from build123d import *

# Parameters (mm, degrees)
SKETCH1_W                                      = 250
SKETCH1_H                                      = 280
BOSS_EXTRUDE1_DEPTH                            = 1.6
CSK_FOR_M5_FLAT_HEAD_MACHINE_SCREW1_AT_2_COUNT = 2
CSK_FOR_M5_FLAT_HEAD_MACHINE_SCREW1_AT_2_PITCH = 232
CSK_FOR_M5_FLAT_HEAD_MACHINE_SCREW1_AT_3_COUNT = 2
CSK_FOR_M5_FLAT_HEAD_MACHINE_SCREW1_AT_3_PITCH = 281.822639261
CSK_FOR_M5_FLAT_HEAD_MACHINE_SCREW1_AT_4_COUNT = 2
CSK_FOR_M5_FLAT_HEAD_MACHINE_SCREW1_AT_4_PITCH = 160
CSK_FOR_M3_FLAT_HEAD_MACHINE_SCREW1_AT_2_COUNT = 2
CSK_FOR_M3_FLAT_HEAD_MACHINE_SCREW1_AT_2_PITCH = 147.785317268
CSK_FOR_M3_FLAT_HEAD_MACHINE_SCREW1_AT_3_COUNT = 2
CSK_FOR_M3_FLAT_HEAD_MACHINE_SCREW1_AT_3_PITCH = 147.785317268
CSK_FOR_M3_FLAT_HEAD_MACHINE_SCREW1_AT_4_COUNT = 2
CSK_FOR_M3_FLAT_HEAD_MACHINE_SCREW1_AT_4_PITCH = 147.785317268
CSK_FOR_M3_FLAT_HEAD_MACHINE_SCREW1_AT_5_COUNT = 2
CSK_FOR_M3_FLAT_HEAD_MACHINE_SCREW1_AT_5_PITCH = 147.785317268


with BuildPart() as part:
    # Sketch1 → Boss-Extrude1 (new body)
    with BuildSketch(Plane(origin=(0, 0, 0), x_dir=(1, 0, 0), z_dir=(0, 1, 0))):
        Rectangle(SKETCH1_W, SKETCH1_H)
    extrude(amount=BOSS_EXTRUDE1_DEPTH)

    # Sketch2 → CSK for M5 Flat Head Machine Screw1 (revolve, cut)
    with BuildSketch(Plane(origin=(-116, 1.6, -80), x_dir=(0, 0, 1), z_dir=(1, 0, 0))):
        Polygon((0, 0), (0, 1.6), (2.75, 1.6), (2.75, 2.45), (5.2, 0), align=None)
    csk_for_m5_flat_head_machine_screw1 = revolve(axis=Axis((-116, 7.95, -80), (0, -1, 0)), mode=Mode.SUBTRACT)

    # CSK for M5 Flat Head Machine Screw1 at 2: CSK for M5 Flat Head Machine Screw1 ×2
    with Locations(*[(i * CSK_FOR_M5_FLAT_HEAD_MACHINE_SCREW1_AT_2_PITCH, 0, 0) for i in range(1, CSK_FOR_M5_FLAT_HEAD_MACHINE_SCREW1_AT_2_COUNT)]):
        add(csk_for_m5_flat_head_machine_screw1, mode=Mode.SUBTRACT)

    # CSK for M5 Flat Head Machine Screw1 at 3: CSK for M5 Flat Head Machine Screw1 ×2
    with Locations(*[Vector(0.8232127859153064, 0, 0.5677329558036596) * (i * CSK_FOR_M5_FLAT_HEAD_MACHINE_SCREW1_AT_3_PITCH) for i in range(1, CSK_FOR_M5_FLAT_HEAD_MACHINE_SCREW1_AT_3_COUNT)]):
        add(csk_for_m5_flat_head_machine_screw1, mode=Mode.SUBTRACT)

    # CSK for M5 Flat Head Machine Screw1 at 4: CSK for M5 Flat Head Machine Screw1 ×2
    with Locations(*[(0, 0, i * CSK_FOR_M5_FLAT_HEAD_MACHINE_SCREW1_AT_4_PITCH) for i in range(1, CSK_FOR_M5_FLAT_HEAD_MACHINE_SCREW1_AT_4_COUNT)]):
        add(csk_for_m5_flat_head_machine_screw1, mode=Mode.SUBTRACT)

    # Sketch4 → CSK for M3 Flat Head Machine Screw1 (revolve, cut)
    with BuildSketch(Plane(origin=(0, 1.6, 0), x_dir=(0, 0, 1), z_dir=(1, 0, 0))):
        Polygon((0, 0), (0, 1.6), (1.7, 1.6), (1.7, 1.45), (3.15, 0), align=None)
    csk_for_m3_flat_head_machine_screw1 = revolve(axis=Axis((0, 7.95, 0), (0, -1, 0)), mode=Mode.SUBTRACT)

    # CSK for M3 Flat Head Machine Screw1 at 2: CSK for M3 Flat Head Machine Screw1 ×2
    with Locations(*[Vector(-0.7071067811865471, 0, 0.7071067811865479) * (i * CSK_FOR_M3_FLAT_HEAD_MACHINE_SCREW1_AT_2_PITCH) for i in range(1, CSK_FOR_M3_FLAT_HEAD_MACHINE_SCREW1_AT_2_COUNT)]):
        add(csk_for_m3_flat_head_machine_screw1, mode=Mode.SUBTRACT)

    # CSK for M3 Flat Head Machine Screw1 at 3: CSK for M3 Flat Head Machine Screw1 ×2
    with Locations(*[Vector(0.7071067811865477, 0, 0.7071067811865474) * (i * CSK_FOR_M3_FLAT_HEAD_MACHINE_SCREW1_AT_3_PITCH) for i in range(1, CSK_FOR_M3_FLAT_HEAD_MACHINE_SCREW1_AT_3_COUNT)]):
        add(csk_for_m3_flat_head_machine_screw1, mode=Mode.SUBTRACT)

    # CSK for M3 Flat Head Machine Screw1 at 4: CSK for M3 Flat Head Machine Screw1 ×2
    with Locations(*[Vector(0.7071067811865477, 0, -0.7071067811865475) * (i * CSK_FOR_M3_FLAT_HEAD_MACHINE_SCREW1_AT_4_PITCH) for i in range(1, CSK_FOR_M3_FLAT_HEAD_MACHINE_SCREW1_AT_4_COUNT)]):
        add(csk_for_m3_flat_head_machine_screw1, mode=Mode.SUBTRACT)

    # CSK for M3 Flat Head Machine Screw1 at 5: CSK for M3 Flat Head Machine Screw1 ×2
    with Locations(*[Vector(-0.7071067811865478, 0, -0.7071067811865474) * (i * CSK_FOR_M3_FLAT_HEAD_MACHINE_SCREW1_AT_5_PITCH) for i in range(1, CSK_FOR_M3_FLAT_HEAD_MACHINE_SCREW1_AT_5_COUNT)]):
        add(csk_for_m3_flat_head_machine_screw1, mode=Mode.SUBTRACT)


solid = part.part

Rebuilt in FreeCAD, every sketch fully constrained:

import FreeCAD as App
import Part
import Sketcher
Q = App.Units.Quantity


def add_polygon(sketch, points):
    """Adds a closed chain of lines whose ends are joined by coincident constraints."""
    first, n = sketch.GeometryCount, len(points)
    for a, b in zip(points, points[1:] + points[:1]):
        sketch.addGeometry(Part.LineSegment(App.Vector(*a, 0), App.Vector(*b, 0)), False)
    for i in range(n):
        sketch.addConstraint(Sketcher.Constraint("Coincident", first + i, 2, first + (i + 1) % n, 1))

doc = App.newDocument("Part")
params = doc.addObject("Spreadsheet::Sheet", "Params")
for row, (alias, value) in enumerate([
    ("sketch1_width", "250 mm"),
    ("sketch1_height", "280 mm"),
    ("pad1_length", "1.6 mm"),
    ("sketch2_width", "1.6 mm"),
    ("sketch2_height", "5.2 mm"),
    ("sketch2_width2", "0.85 mm"),
    ("groove_angle", "360 deg"),
    ("linearpattern_pitch", "232 mm"),
    ("linearpattern2_pitch", "281.822639 mm"),
    ("linearpattern3_pitch", "160 mm"),
    ("sketch3_width", "1.6 mm"),
    ("sketch3_height", "1.7 mm"),
    ("sketch3_width2", "0.15 mm"),
    ("groove2_angle", "360 deg"),
    ("linearpattern4_pitch", "147.785317 mm"),
    ("linearpattern5_pitch", "147.785317 mm"),
    ("linearpattern6_pitch", "147.785317 mm"),
    ("linearpattern7_pitch", "147.785317 mm"),
], start=1):
    params.set(f"A{row}", alias)
    params.set(f"B{row}", "=" + value)
    params.setAlias(f"B{row}", alias)

body = doc.addObject("PartDesign::Body", "Body")

# Sketch on XZ plane
sketch1 = doc.addObject("Sketcher::SketchObject", "Sketch")
body.addObject(sketch1)
sketch1.AttachmentSupport = (doc.XZ_Plane, [""])
sketch1.MapMode = "FlatFace"
add_polygon(sketch1, [(-125, -140), (-125, 140), (125, 140), (125, -140)])  # lines 0-3
sketch1.addConstraint(Sketcher.Constraint("Vertical", 0))
sketch1.addConstraint(Sketcher.Constraint("Horizontal", 1))
sketch1.addConstraint(Sketcher.Constraint("Vertical", 2))
sketch1.addConstraint(Sketcher.Constraint("Horizontal", 3))
sketch1.addConstraint(Sketcher.Constraint("Symmetric", 0, 2, 2, 2, -1, 1))
sketch1.addConstraint(Sketcher.Constraint("DistanceX", 1, 1, 1, 2, 250.0))
sketch1.addConstraint(Sketcher.Constraint("DistanceY", 0, 1, 0, 2, 280.0))
sketch1.setExpression("Constraints[9]", "Params.sketch1_width")
sketch1.setExpression("Constraints[10]", "Params.sketch1_height")
pad1 = doc.addObject("PartDesign::Pad", "Pad")
body.addObject(pad1)
pad1.Profile = sketch1
pad1.setExpression("Length", "Params.pad1_length")
pad1.Reversed = True

# Sketch on YZ plane
sketch2 = doc.addObject("Sketcher::SketchObject", "Sketch001")
body.addObject(sketch2)
sketch2.AttachmentSupport = (doc.YZ_Plane, [""])
sketch2.MapMode = "FlatFace"
sketch2.AttachmentOffset = App.Placement(App.Vector(0, 0, -116), App.Rotation())
add_polygon(sketch2, [(0, -80), (1.6, -80), (1.6, -74.8), (-0.8, -77.2), (0, -77.2)])  # lines 0-4
sketch2.addGeometry(Part.LineSegment(App.Vector(1.6, -80, 0), App.Vector(-0.8, -80, 0)), True)  # axis
sketch2.addConstraint(Sketcher.Constraint("Horizontal", 0))
sketch2.addConstraint(Sketcher.Constraint("Vertical", 1))
sketch2.addConstraint(Sketcher.Constraint("Horizontal", 3))
sketch2.addConstraint(Sketcher.Constraint("Vertical", 4))
sketch2.addConstraint(Sketcher.Constraint("Horizontal", 5))
sketch2.addConstraint(Sketcher.Constraint("Coincident", 5, 1, 0, 2))
sketch2.addConstraint(Sketcher.Constraint("PointOnObject", 3, 2, -2))
sketch2.addConstraint(Sketcher.Constraint("Vertical", 2, 2, 5, 2))
sketch2.addConstraint(Sketcher.Constraint("Angle", 2, Q("-135 deg")))
sketch2.addConstraint(Sketcher.Constraint("DistanceX", 0, 1, 0, 2, 1.6))
sketch2.addConstraint(Sketcher.Constraint("DistanceY", 1, 1, 1, 2, 5.2))
sketch2.addConstraint(Sketcher.Constraint("DistanceY", 0, 2, -1, 1, 80.0))
sketch2.addConstraint(Sketcher.Constraint("DistanceX", 3, 1, 3, 2, 0.85))
sketch2.setExpression("Constraints[14]", "Params.sketch2_width")
sketch2.setExpression("Constraints[15]", "Params.sketch2_height")
sketch2.setExpression("Constraints[17]", "Params.sketch2_width2")
groove = doc.addObject("PartDesign::Groove", "Groove")
body.addObject(groove)
groove.Profile = sketch2
groove.ReferenceAxis = (sketch2, ["Axis0"])
groove.setExpression("Angle", "Params.groove_angle")
doc.recompute()

linearpattern = doc.addObject("PartDesign::LinearPattern", "LinearPattern")
body.addObject(linearpattern)
linearpattern.Originals = [groove]
linearpattern.Direction = (doc.X_Axis, [""])
linearpattern.Mode = "offset"
linearpattern.setExpression("Offset", "Params.linearpattern_pitch")
linearpattern.Occurrences = 2
body.Tip = linearpattern
doc.recompute()

datumline = doc.addObject("PartDesign::Line", "DatumLine")
body.addObject(datumline)
datumline.Placement = App.Placement(App.Vector(0, 0, 0), App.Rotation(App.Vector(0, 0, 1), App.Vector(0.823212786, 0, 0.567732956)))
linearpattern2 = doc.addObject("PartDesign::LinearPattern", "LinearPattern001")
body.addObject(linearpattern2)
linearpattern2.Originals = [groove]
linearpattern2.Direction = (datumline, [""])
linearpattern2.Mode = "offset"
linearpattern2.setExpression("Offset", "Params.linearpattern2_pitch")
linearpattern2.Occurrences = 2
body.Tip = linearpattern2
doc.recompute()

linearpattern3 = doc.addObject("PartDesign::LinearPattern", "LinearPattern002")
body.addObject(linearpattern3)
linearpattern3.Originals = [groove]
linearpattern3.Direction = (doc.Z_Axis, [""])
linearpattern3.Mode = "offset"
linearpattern3.setExpression("Offset", "Params.linearpattern3_pitch")
linearpattern3.Occurrences = 2
body.Tip = linearpattern3

# Sketch on YZ plane
sketch3 = doc.addObject("Sketcher::SketchObject", "Sketch002")
body.addObject(sketch3)
sketch3.AttachmentSupport = (doc.YZ_Plane, [""])
sketch3.MapMode = "FlatFace"
add_polygon(sketch3, [(0, 0), (1.6, 0), (1.6, 3.15), (0.15, 1.7), (0, 1.7)])  # lines 0-4
sketch3.addConstraint(Sketcher.Constraint("Horizontal", 0))
sketch3.addConstraint(Sketcher.Constraint("Vertical", 1))
sketch3.addConstraint(Sketcher.Constraint("Horizontal", 3))
sketch3.addConstraint(Sketcher.Constraint("Vertical", 4))
sketch3.addConstraint(Sketcher.Constraint("Coincident", 4, 2, -1, 1))
sketch3.addConstraint(Sketcher.Constraint("Angle", 2, Q("-135 deg")))
sketch3.addConstraint(Sketcher.Constraint("DistanceX", 0, 1, 0, 2, 1.6))
sketch3.addConstraint(Sketcher.Constraint("DistanceY", 4, 2, 4, 1, 1.7))
sketch3.addConstraint(Sketcher.Constraint("DistanceX", 3, 2, 3, 1, 0.15))
sketch3.setExpression("Constraints[11]", "Params.sketch3_width")
sketch3.setExpression("Constraints[12]", "Params.sketch3_height")
sketch3.setExpression("Constraints[13]", "Params.sketch3_width2")
groove2 = doc.addObject("PartDesign::Groove", "Groove001")
body.addObject(groove2)
groove2.Profile = sketch3
groove2.ReferenceAxis = (sketch3, ["H_Axis"])
groove2.setExpression("Angle", "Params.groove2_angle")
doc.recompute()

datumline2 = doc.addObject("PartDesign::Line", "DatumLine001")
body.addObject(datumline2)
datumline2.Placement = App.Placement(App.Vector(0, 0, 0), App.Rotation(App.Vector(0, 0, 1), App.Vector(-0.707106781, 0, 0.707106781)))
linearpattern4 = doc.addObject("PartDesign::LinearPattern", "LinearPattern003")
body.addObject(linearpattern4)
linearpattern4.Originals = [groove2]
linearpattern4.Direction = (datumline2, [""])
linearpattern4.Mode = "offset"
linearpattern4.setExpression("Offset", "Params.linearpattern4_pitch")
linearpattern4.Occurrences = 2
body.Tip = linearpattern4
doc.recompute()

datumline3 = doc.addObject("PartDesign::Line", "DatumLine002")
body.addObject(datumline3)
datumline3.Placement = App.Placement(App.Vector(0, 0, 0), App.Rotation(App.Vector(0, 0, 1), App.Vector(0.707106781, 0, 0.707106781)))
linearpattern5 = doc.addObject("PartDesign::LinearPattern", "LinearPattern004")
body.addObject(linearpattern5)
linearpattern5.Originals = [groove2]
linearpattern5.Direction = (datumline3, [""])
linearpattern5.Mode = "offset"
linearpattern5.setExpression("Offset", "Params.linearpattern5_pitch")
linearpattern5.Occurrences = 2
body.Tip = linearpattern5
doc.recompute()

datumline4 = doc.addObject("PartDesign::Line", "DatumLine003")
body.addObject(datumline4)
datumline4.Placement = App.Placement(App.Vector(0, 0, 0), App.Rotation(App.Vector(0, 0, 1), App.Vector(0.707106781, 0, -0.707106781)))
linearpattern6 = doc.addObject("PartDesign::LinearPattern", "LinearPattern005")
body.addObject(linearpattern6)
linearpattern6.Originals = [groove2]
linearpattern6.Direction = (datumline4, [""])
linearpattern6.Mode = "offset"
linearpattern6.setExpression("Offset", "Params.linearpattern6_pitch")
linearpattern6.Occurrences = 2
body.Tip = linearpattern6
doc.recompute()

datumline5 = doc.addObject("PartDesign::Line", "DatumLine004")
body.addObject(datumline5)
datumline5.Placement = App.Placement(App.Vector(0, 0, 0), App.Rotation(App.Vector(0, 0, 1), App.Vector(-0.707106781, 0, -0.707106781)))
linearpattern7 = doc.addObject("PartDesign::LinearPattern", "LinearPattern006")
body.addObject(linearpattern7)
linearpattern7.Originals = [groove2]
linearpattern7.Direction = (datumline5, [""])
linearpattern7.Mode = "offset"
linearpattern7.setExpression("Offset", "Params.linearpattern7_pitch")
linearpattern7.Occurrences = 2
body.Tip = linearpattern7

doc.recompute()
